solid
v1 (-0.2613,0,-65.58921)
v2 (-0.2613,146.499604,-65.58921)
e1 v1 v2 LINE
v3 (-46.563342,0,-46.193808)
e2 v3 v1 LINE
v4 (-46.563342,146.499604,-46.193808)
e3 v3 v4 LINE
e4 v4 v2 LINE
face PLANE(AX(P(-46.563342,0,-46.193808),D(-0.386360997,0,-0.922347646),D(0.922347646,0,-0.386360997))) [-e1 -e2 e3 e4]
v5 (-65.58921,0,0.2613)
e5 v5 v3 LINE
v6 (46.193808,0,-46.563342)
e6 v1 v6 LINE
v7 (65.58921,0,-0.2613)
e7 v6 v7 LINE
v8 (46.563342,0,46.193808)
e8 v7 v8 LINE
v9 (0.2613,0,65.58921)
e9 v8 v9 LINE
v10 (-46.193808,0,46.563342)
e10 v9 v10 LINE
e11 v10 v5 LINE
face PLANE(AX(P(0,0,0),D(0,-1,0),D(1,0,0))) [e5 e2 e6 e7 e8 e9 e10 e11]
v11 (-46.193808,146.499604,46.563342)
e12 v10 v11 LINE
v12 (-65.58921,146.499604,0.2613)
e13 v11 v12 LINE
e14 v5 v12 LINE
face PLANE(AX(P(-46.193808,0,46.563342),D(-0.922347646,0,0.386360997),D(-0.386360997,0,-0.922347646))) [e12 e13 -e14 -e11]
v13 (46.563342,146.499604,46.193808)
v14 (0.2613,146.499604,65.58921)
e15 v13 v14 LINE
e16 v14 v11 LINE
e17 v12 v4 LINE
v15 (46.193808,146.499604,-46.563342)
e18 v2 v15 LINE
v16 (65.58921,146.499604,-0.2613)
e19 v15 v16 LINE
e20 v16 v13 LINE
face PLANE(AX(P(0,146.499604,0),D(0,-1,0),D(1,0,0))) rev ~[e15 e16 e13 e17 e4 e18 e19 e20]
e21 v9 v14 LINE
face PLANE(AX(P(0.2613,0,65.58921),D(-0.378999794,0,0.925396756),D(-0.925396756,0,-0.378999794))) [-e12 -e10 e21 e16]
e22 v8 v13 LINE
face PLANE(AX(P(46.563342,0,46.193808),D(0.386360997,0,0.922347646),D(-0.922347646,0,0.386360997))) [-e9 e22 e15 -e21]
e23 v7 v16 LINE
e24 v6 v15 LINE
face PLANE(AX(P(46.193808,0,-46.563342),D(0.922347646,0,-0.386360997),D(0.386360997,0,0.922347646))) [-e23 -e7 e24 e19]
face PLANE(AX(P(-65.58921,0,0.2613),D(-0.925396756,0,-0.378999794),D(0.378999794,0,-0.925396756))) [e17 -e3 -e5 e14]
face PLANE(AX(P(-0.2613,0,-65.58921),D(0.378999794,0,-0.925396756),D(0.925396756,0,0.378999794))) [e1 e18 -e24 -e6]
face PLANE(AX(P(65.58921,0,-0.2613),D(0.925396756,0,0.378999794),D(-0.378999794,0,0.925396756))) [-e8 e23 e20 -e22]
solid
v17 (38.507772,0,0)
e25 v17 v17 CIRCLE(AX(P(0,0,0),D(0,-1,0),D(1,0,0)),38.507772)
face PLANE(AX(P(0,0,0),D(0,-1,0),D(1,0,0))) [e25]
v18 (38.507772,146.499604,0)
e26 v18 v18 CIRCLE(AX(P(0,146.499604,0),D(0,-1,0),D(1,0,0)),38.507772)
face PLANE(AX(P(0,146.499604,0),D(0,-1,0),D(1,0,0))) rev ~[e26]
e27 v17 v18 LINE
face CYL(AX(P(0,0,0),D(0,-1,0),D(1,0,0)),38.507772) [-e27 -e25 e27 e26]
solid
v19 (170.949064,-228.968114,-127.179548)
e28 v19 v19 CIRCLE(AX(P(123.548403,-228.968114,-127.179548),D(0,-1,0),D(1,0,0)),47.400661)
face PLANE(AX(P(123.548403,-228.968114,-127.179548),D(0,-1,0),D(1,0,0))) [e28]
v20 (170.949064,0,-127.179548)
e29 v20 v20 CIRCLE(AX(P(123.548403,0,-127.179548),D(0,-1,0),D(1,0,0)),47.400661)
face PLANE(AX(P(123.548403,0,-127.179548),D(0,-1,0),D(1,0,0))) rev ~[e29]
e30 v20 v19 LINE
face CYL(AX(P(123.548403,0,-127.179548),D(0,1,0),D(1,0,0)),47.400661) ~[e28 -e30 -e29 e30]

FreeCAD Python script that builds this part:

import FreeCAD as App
import Part
import Sketcher
Q = App.Units.Quantity


def add_polygon(sketch, points):
    """Adds a closed chain of lines whose ends are joined by coincident constraints."""
    first, n = sketch.GeometryCount, len(points)
    for a, b in zip(points, points[1:] + points[:1]):
        sketch.addGeometry(Part.LineSegment(App.Vector(*a, 0), App.Vector(*b, 0)), False)
    for i in range(n):
        sketch.addConstraint(Sketcher.Constraint("Coincident", first + i, 2, first + (i + 1) % n, 1))

doc = App.newDocument("Part")
body = doc.addObject("PartDesign::Body", "Body")

# Sketch on XZ plane
sketch1 = doc.addObject("Sketcher::SketchObject", "Sketch")
body.addObject(sketch1)
sketch1.AttachmentSupport = (doc.XZ_Plane, [""])
sketch1.MapMode = "FlatFace"
sketch1.addGeometry(Part.Circle(App.Vector(124, -127, 0), App.Vector(0, 0, 1), 47), False)
sketch1.addConstraint(Sketcher.Constraint("Diameter", 0, Q("94.801321 mm")))
sketch1.addConstraint(Sketcher.Constraint("DistanceY", 0, 3, -1, 1, Q("127.179548 mm")))
sketch1.addConstraint(Sketcher.Constraint("DistanceX", -1, 1, 0, 3, Q("123.548403 mm")))
pad1 = doc.addObject("PartDesign::Pad", "Pad")
body.addObject(pad1)
pad1.Profile = sketch1
pad1.Length = 228.968114
body2 = doc.addObject("PartDesign::Body", "Body001")

# Sketch on XZ plane
sketch2 = doc.addObject("Sketcher::SketchObject", "Sketch001")
body2.addObject(sketch2)
sketch2.AttachmentSupport = (doc.getObject("XZ_Plane001"), [""])
sketch2.MapMode = "FlatFace"
sketch2.addGeometry(Part.Circle(App.Vector(0, 0, 0), App.Vector(0, 0, 1), 39), False)
sketch2.addConstraint(Sketcher.Constraint("Coincident", 0, 3, -1, 1))
sketch2.addConstraint(Sketcher.Constraint("Diameter", 0, Q("77.015544 mm")))
pad2 = doc.addObject("PartDesign::Pad", "Pad001")
body2.addObject(pad2)
pad2.Profile = sketch2
pad2.Length = 146.499604
pad2.Reversed = True
body3 = doc.addObject("PartDesign::Body", "Body002")

# Sketch on XZ plane
sketch3 = doc.addObject("Sketcher::SketchObject", "Sketch002")
body3.addObject(sketch3)
sketch3.AttachmentSupport = (doc.getObject("XZ_Plane002"), [""])
sketch3.MapMode = "FlatFace"
add_polygon(sketch3, [(0, 66), (-46, 47), (-66, 0), (-47, -46), (0, -66), (46, -47), (66, 0), (47, 46)])  # lines 0-7
sketch3.addConstraint(Sketcher.Constraint("Symmetric", 0, 2, 4, 2, -1, 1))
sketch3.addConstraint(Sketcher.Constraint("Symmetric", 1, 2, 5, 2, -1, 1))
sketch3.addConstraint(Sketcher.Constraint("Symmetric", 2, 2, 6, 2, -1, 1))
sketch3.addConstraint(Sketcher.Constraint("Symmetric", 3, 2, 7, 2, -1, 1))
sketch3.addConstraint(Sketcher.Constraint("Perpendicular", 0, 2))
sketch3.addConstraint(Sketcher.Constraint("Perpendicular", 1, 3))
sketch3.addConstraint(Sketcher.Constraint("Equal", 0, 1))
sketch3.addConstraint(Sketcher.Constraint("Equal", 1, 2))
sketch3.addConstraint(Sketcher.Constraint("Equal", 2, 3))
sketch3.addConstraint(Sketcher.Constraint("DistanceY", -1, 1, 1, 2, Q("0.2613 mm")))
sketch3.addConstraint(Sketcher.Constraint("DistanceX", 1, 2, 0, 2, Q("19.395402 mm")))
sketch3.addConstraint(Sketcher.Constraint("DistanceX", 0, 2, -1, 1, Q("46.193808 mm")))
pad3 = doc.addObject("PartDesign::Pad", "Pad002")
body3.addObject(pad3)
pad3.Profile = sketch3
pad3.Length = 146.499604
pad3.Reversed = True

doc.recompute()
